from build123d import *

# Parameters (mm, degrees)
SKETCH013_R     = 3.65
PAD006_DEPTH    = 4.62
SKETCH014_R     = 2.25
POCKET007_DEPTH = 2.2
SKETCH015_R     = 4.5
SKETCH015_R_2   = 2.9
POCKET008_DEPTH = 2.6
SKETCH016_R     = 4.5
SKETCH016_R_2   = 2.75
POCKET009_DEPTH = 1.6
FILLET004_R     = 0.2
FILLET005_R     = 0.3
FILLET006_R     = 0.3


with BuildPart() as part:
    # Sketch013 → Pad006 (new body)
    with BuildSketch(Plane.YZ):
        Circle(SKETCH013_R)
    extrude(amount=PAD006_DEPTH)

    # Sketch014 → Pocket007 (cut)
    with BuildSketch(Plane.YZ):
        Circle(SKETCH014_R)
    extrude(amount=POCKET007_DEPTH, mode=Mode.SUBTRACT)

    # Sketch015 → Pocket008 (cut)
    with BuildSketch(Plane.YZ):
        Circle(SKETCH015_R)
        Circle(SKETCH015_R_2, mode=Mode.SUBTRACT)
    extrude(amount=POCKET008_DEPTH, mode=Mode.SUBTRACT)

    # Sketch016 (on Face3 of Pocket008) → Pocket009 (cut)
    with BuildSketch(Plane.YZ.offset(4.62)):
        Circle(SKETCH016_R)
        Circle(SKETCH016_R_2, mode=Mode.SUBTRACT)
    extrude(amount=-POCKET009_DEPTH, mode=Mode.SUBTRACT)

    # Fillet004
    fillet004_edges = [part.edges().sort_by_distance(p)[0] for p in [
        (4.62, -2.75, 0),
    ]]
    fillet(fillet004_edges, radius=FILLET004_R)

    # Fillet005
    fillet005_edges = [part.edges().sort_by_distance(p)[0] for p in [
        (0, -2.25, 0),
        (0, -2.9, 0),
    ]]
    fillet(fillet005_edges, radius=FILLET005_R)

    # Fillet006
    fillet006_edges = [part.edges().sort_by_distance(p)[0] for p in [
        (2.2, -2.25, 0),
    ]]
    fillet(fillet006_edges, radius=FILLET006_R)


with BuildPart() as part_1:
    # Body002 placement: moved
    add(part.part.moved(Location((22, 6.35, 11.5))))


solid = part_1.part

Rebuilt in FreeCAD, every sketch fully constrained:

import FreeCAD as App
import Part
import Sketcher
from FreeCAD import Vector


def edges_at(feature, points):
    """Names of the edges that pass closest to the given points."""
    edges = feature.Shape.Edges
    near = lambda p: min(range(len(edges)), key=lambda i: edges[i].distToShape(Part.Vertex(*p))[0])
    return sorted({f"Edge{near(p) + 1}" for p in points})

doc = App.newDocument("Part")
params = doc.addObject("Spreadsheet::Sheet", "Params")
for row, (alias, value) in enumerate([
    ("sketch1_diameter", "7.3 mm"),
    ("pad1_length", "4.62 mm"),
    ("sketch2_diameter", "4.5 mm"),
    ("pocket1_length", "2.2 mm"),
    ("sketch3_diameter", "9 mm"),
    ("sketch3_diameter2", "5.8 mm"),
    ("pocket2_length", "2.6 mm"),
    ("sketch4_diameter", "9 mm"),
    ("sketch4_diameter2", "5.5 mm"),
    ("pocket3_length", "1.6 mm"),
    ("fillet_radius", "0.2 mm"),
    ("fillet2_radius", "0.3 mm"),
    ("fillet3_radius", "0.3 mm"),
], start=1):
    params.set(f"A{row}", alias)
    params.set(f"B{row}", "=" + value)
    params.setAlias(f"B{row}", alias)

body = doc.addObject("PartDesign::Body", "Body")

sketch1 = body.newObject("Sketcher::SketchObject", "Sketch")
sketch1.AttachmentSupport = (doc.getObject("YZ_Plane"), [""])
sketch1.MapMode = "FlatFace"
sketch1.addGeometry(Part.Circle(Vector(0, 0, 0), Vector(0, 0, 1), 3.65), False)
sketch1.addConstraint([
    Sketcher.Constraint("Coincident", 0, 3, -1, 1),
    Sketcher.Constraint("Diameter", 0, 7.3),
])
sketch1.setExpression("Constraints[1]", "Params.sketch1_diameter")
pad1 = body.newObject("PartDesign::Pad", "Pad")
pad1.Profile = sketch1
pad1.setExpression("Length", "Params.pad1_length")

sketch2 = body.newObject("Sketcher::SketchObject", "Sketch001")
sketch2.AttachmentSupport = (doc.getObject("YZ_Plane"), [""])
sketch2.MapMode = "FlatFace"
sketch2.addGeometry(Part.Circle(Vector(0, 0, 0), Vector(0, 0, 1), 2.25), False)
sketch2.addConstraint([
    Sketcher.Constraint("Coincident", 0, 3, -1, 1),
    Sketcher.Constraint("Diameter", 0, 4.5),
])
sketch2.setExpression("Constraints[1]", "Params.sketch2_diameter")
pocket1 = body.newObject("PartDesign::Pocket", "Pocket")
pocket1.Profile = sketch2
pocket1.setExpression("Length", "Params.pocket1_length")
pocket1.Reversed = True

sketch3 = body.newObject("Sketcher::SketchObject", "Sketch002")
sketch3.AttachmentSupport = (doc.getObject("YZ_Plane"), [""])
sketch3.MapMode = "FlatFace"
sketch3.addGeometry([
    Part.Circle(Vector(0, 0, 0), Vector(0, 0, 1), 4.5),
    Part.Circle(Vector(0, 0, 0), Vector(0, 0, 1), 2.9),
], False)
sketch3.addConstraint([
    Sketcher.Constraint("Coincident", 0, 3, -1, 1),
    Sketcher.Constraint("Coincident", 1, 3, -1, 1),
    Sketcher.Constraint("Diameter", 0, 9.0),
    Sketcher.Constraint("Diameter", 1, 5.8),
])
sketch3.setExpression("Constraints[2]", "Params.sketch3_diameter")
sketch3.setExpression("Constraints[3]", "Params.sketch3_diameter2")
pocket2 = body.newObject("PartDesign::Pocket", "Pocket001")
pocket2.Profile = sketch3
pocket2.setExpression("Length", "Params.pocket2_length")
pocket2.Reversed = True

sketch4 = body.newObject("Sketcher::SketchObject", "Sketch003")
sketch4.AttachmentSupport = (doc.getObject("YZ_Plane"), [""])
sketch4.MapMode = "FlatFace"
sketch4.AttachmentOffset = App.Placement(Vector(0, 0, 4.62), App.Rotation())
sketch4.addGeometry([
    Part.Circle(Vector(0, 0, 0), Vector(0, 0, 1), 4.5),
    Part.Circle(Vector(0, 0, 0), Vector(0, 0, 1), 2.75),
], False)
sketch4.addConstraint([
    Sketcher.Constraint("Coincident", 0, 3, -1, 1),
    Sketcher.Constraint("Coincident", 1, 3, -1, 1),
    Sketcher.Constraint("Diameter", 0, 9.0),
    Sketcher.Constraint("Diameter", 1, 5.5),
])
sketch4.setExpression("Constraints[2]", "Params.sketch4_diameter")
sketch4.setExpression("Constraints[3]", "Params.sketch4_diameter2")
pocket3 = body.newObject("PartDesign::Pocket", "Pocket002")
pocket3.Profile = sketch4
pocket3.setExpression("Length", "Params.pocket3_length")
doc.recompute()

fillet = body.newObject("PartDesign::Fillet", "Fillet")
fillet.Base = (pocket3, edges_at(pocket3, [(4.62, -2.75, 0)]))
fillet.setExpression("Radius", "Params.fillet_radius")
doc.recompute()

fillet2 = body.newObject("PartDesign::Fillet", "Fillet001")
fillet2.Base = (fillet, edges_at(fillet, [(0, -2.25, 0), (0, -2.9, 0)]))
fillet2.setExpression("Radius", "Params.fillet2_radius")
doc.recompute()

fillet3 = body.newObject("PartDesign::Fillet", "Fillet002")
fillet3.Base = (fillet2, edges_at(fillet2, [(2.2, -2.25, 0)]))
fillet3.setExpression("Radius", "Params.fillet3_radius")
body2 = doc.addObject("PartDesign::Body", "Body001")
doc.recompute()

body.Placement = App.Placement(Vector(22, 6.35, 11.5), App.Rotation(Vector(0, 0, 1), 0))
boolean = body2.newObject("PartDesign::Boolean", "Boolean")
boolean.Type = "Fuse"
boolean.addObjects([body])

doc.recompute()
